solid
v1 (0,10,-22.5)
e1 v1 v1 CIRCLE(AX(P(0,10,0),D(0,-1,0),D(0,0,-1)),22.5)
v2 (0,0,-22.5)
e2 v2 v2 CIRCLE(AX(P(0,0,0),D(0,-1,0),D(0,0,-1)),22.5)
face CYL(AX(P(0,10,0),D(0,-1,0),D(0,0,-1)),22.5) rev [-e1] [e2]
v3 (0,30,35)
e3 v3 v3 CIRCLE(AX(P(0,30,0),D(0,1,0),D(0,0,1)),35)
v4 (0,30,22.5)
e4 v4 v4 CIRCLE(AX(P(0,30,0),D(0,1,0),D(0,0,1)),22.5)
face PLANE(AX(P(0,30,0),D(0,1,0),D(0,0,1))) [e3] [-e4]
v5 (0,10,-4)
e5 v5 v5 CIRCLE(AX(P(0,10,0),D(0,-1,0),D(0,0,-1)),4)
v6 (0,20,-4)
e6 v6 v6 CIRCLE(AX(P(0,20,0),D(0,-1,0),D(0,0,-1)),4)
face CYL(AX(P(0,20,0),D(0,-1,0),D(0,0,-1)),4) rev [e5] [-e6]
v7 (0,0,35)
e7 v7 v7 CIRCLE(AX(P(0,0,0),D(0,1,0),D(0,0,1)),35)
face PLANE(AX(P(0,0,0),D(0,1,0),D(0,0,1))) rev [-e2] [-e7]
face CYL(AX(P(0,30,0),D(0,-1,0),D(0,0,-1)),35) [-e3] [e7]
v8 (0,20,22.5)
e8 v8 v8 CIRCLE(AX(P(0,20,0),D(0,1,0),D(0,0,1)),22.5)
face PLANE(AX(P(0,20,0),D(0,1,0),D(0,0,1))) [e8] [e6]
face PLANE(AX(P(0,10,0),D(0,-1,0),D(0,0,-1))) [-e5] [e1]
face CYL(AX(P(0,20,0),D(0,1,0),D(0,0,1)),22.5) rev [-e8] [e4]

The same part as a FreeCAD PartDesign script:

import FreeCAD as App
import Part
import Sketcher
from FreeCAD import Vector
Q = App.Units.Quantity

doc = App.newDocument("Part")
body = doc.addObject("PartDesign::Body", "Body")

sketch1 = doc.addObject("Sketcher::SketchObject", "Sketch")
body.addObject(sketch1)
sketch1.AttachmentSupport = (doc.XZ_Plane, [""])
sketch1.MapMode = "FlatFace"
sketch1.addGeometry(Part.Circle(Vector(0, 0, 0), Vector(0, 0, 1), 35), False)
sketch1.addConstraint(Sketcher.Constraint("Coincident", 0, 3, -1, 1))
sketch1.addConstraint(Sketcher.Constraint("Diameter", 0, Q("70 mm")))
pad1 = doc.addObject("PartDesign::Pad", "Pad")
body.addObject(pad1)
pad1.Profile = sketch1
pad1.Length = 30
pad1.Reversed = True

sketch2 = doc.addObject("Sketcher::SketchObject", "Sketch001")
body.addObject(sketch2)
sketch2.AttachmentSupport = (doc.XZ_Plane, [""])
sketch2.MapMode = "FlatFace"
sketch2.AttachmentOffset = App.Placement(Vector(0, 0, -30), App.Rotation())
sketch2.addGeometry(Part.Circle(Vector(0, 0, 0), Vector(0, 0, 1), 22.5), False)
sketch2.addConstraint(Sketcher.Constraint("Coincident", 0, 3, -1, 1))
sketch2.addConstraint(Sketcher.Constraint("Diameter", 0, Q("45 mm")))
pocket1 = doc.addObject("PartDesign::Pocket", "Pocket")
body.addObject(pocket1)
pocket1.Profile = sketch2
pocket1.Length = 10
pocket1.Reversed = True

sketch3 = doc.addObject("Sketcher::SketchObject", "Sketch002")
body.addObject(sketch3)
sketch3.AttachmentSupport = (doc.XZ_Plane, [""])
sketch3.MapMode = "FlatFace"
sketch3.AttachmentOffset = App.Placement(Vector(0, 0, -10), App.Rotation())
sketch3.addGeometry(Part.Circle(Vector(0, 0, 0), Vector(0, 0, 1), 22.5), False)
sketch3.addConstraint(Sketcher.Constraint("Coincident", 0, 3, -1, 1))
sketch3.addConstraint(Sketcher.Constraint("Diameter", 0, Q("45 mm")))
pocket2 = doc.addObject("PartDesign::Pocket", "Pocket001")
body.addObject(pocket2)
pocket2.Profile = sketch3
pocket2.Length = 10
pocket2.Reversed = True

sketch4 = doc.addObject("Sketcher::SketchObject", "Sketch003")
body.addObject(sketch4)
sketch4.AttachmentSupport = (doc.XZ_Plane, [""])
sketch4.MapMode = "FlatFace"
sketch4.AttachmentOffset = App.Placement(Vector(0, 0, -10), App.Rotation())
sketch4.addGeometry(Part.Circle(Vector(0, 0, 0), Vector(0, 0, 1), 4), False)
sketch4.addConstraint(Sketcher.Constraint("Coincident", 0, 3, -1, 1))
sketch4.addConstraint(Sketcher.Constraint("Diameter", 0, Q("8 mm")))
pocket3 = doc.addObject("PartDesign::Pocket", "Pocket002")
body.addObject(pocket3)
pocket3.Profile = sketch4
pocket3.Length = 10

doc.recompute()
